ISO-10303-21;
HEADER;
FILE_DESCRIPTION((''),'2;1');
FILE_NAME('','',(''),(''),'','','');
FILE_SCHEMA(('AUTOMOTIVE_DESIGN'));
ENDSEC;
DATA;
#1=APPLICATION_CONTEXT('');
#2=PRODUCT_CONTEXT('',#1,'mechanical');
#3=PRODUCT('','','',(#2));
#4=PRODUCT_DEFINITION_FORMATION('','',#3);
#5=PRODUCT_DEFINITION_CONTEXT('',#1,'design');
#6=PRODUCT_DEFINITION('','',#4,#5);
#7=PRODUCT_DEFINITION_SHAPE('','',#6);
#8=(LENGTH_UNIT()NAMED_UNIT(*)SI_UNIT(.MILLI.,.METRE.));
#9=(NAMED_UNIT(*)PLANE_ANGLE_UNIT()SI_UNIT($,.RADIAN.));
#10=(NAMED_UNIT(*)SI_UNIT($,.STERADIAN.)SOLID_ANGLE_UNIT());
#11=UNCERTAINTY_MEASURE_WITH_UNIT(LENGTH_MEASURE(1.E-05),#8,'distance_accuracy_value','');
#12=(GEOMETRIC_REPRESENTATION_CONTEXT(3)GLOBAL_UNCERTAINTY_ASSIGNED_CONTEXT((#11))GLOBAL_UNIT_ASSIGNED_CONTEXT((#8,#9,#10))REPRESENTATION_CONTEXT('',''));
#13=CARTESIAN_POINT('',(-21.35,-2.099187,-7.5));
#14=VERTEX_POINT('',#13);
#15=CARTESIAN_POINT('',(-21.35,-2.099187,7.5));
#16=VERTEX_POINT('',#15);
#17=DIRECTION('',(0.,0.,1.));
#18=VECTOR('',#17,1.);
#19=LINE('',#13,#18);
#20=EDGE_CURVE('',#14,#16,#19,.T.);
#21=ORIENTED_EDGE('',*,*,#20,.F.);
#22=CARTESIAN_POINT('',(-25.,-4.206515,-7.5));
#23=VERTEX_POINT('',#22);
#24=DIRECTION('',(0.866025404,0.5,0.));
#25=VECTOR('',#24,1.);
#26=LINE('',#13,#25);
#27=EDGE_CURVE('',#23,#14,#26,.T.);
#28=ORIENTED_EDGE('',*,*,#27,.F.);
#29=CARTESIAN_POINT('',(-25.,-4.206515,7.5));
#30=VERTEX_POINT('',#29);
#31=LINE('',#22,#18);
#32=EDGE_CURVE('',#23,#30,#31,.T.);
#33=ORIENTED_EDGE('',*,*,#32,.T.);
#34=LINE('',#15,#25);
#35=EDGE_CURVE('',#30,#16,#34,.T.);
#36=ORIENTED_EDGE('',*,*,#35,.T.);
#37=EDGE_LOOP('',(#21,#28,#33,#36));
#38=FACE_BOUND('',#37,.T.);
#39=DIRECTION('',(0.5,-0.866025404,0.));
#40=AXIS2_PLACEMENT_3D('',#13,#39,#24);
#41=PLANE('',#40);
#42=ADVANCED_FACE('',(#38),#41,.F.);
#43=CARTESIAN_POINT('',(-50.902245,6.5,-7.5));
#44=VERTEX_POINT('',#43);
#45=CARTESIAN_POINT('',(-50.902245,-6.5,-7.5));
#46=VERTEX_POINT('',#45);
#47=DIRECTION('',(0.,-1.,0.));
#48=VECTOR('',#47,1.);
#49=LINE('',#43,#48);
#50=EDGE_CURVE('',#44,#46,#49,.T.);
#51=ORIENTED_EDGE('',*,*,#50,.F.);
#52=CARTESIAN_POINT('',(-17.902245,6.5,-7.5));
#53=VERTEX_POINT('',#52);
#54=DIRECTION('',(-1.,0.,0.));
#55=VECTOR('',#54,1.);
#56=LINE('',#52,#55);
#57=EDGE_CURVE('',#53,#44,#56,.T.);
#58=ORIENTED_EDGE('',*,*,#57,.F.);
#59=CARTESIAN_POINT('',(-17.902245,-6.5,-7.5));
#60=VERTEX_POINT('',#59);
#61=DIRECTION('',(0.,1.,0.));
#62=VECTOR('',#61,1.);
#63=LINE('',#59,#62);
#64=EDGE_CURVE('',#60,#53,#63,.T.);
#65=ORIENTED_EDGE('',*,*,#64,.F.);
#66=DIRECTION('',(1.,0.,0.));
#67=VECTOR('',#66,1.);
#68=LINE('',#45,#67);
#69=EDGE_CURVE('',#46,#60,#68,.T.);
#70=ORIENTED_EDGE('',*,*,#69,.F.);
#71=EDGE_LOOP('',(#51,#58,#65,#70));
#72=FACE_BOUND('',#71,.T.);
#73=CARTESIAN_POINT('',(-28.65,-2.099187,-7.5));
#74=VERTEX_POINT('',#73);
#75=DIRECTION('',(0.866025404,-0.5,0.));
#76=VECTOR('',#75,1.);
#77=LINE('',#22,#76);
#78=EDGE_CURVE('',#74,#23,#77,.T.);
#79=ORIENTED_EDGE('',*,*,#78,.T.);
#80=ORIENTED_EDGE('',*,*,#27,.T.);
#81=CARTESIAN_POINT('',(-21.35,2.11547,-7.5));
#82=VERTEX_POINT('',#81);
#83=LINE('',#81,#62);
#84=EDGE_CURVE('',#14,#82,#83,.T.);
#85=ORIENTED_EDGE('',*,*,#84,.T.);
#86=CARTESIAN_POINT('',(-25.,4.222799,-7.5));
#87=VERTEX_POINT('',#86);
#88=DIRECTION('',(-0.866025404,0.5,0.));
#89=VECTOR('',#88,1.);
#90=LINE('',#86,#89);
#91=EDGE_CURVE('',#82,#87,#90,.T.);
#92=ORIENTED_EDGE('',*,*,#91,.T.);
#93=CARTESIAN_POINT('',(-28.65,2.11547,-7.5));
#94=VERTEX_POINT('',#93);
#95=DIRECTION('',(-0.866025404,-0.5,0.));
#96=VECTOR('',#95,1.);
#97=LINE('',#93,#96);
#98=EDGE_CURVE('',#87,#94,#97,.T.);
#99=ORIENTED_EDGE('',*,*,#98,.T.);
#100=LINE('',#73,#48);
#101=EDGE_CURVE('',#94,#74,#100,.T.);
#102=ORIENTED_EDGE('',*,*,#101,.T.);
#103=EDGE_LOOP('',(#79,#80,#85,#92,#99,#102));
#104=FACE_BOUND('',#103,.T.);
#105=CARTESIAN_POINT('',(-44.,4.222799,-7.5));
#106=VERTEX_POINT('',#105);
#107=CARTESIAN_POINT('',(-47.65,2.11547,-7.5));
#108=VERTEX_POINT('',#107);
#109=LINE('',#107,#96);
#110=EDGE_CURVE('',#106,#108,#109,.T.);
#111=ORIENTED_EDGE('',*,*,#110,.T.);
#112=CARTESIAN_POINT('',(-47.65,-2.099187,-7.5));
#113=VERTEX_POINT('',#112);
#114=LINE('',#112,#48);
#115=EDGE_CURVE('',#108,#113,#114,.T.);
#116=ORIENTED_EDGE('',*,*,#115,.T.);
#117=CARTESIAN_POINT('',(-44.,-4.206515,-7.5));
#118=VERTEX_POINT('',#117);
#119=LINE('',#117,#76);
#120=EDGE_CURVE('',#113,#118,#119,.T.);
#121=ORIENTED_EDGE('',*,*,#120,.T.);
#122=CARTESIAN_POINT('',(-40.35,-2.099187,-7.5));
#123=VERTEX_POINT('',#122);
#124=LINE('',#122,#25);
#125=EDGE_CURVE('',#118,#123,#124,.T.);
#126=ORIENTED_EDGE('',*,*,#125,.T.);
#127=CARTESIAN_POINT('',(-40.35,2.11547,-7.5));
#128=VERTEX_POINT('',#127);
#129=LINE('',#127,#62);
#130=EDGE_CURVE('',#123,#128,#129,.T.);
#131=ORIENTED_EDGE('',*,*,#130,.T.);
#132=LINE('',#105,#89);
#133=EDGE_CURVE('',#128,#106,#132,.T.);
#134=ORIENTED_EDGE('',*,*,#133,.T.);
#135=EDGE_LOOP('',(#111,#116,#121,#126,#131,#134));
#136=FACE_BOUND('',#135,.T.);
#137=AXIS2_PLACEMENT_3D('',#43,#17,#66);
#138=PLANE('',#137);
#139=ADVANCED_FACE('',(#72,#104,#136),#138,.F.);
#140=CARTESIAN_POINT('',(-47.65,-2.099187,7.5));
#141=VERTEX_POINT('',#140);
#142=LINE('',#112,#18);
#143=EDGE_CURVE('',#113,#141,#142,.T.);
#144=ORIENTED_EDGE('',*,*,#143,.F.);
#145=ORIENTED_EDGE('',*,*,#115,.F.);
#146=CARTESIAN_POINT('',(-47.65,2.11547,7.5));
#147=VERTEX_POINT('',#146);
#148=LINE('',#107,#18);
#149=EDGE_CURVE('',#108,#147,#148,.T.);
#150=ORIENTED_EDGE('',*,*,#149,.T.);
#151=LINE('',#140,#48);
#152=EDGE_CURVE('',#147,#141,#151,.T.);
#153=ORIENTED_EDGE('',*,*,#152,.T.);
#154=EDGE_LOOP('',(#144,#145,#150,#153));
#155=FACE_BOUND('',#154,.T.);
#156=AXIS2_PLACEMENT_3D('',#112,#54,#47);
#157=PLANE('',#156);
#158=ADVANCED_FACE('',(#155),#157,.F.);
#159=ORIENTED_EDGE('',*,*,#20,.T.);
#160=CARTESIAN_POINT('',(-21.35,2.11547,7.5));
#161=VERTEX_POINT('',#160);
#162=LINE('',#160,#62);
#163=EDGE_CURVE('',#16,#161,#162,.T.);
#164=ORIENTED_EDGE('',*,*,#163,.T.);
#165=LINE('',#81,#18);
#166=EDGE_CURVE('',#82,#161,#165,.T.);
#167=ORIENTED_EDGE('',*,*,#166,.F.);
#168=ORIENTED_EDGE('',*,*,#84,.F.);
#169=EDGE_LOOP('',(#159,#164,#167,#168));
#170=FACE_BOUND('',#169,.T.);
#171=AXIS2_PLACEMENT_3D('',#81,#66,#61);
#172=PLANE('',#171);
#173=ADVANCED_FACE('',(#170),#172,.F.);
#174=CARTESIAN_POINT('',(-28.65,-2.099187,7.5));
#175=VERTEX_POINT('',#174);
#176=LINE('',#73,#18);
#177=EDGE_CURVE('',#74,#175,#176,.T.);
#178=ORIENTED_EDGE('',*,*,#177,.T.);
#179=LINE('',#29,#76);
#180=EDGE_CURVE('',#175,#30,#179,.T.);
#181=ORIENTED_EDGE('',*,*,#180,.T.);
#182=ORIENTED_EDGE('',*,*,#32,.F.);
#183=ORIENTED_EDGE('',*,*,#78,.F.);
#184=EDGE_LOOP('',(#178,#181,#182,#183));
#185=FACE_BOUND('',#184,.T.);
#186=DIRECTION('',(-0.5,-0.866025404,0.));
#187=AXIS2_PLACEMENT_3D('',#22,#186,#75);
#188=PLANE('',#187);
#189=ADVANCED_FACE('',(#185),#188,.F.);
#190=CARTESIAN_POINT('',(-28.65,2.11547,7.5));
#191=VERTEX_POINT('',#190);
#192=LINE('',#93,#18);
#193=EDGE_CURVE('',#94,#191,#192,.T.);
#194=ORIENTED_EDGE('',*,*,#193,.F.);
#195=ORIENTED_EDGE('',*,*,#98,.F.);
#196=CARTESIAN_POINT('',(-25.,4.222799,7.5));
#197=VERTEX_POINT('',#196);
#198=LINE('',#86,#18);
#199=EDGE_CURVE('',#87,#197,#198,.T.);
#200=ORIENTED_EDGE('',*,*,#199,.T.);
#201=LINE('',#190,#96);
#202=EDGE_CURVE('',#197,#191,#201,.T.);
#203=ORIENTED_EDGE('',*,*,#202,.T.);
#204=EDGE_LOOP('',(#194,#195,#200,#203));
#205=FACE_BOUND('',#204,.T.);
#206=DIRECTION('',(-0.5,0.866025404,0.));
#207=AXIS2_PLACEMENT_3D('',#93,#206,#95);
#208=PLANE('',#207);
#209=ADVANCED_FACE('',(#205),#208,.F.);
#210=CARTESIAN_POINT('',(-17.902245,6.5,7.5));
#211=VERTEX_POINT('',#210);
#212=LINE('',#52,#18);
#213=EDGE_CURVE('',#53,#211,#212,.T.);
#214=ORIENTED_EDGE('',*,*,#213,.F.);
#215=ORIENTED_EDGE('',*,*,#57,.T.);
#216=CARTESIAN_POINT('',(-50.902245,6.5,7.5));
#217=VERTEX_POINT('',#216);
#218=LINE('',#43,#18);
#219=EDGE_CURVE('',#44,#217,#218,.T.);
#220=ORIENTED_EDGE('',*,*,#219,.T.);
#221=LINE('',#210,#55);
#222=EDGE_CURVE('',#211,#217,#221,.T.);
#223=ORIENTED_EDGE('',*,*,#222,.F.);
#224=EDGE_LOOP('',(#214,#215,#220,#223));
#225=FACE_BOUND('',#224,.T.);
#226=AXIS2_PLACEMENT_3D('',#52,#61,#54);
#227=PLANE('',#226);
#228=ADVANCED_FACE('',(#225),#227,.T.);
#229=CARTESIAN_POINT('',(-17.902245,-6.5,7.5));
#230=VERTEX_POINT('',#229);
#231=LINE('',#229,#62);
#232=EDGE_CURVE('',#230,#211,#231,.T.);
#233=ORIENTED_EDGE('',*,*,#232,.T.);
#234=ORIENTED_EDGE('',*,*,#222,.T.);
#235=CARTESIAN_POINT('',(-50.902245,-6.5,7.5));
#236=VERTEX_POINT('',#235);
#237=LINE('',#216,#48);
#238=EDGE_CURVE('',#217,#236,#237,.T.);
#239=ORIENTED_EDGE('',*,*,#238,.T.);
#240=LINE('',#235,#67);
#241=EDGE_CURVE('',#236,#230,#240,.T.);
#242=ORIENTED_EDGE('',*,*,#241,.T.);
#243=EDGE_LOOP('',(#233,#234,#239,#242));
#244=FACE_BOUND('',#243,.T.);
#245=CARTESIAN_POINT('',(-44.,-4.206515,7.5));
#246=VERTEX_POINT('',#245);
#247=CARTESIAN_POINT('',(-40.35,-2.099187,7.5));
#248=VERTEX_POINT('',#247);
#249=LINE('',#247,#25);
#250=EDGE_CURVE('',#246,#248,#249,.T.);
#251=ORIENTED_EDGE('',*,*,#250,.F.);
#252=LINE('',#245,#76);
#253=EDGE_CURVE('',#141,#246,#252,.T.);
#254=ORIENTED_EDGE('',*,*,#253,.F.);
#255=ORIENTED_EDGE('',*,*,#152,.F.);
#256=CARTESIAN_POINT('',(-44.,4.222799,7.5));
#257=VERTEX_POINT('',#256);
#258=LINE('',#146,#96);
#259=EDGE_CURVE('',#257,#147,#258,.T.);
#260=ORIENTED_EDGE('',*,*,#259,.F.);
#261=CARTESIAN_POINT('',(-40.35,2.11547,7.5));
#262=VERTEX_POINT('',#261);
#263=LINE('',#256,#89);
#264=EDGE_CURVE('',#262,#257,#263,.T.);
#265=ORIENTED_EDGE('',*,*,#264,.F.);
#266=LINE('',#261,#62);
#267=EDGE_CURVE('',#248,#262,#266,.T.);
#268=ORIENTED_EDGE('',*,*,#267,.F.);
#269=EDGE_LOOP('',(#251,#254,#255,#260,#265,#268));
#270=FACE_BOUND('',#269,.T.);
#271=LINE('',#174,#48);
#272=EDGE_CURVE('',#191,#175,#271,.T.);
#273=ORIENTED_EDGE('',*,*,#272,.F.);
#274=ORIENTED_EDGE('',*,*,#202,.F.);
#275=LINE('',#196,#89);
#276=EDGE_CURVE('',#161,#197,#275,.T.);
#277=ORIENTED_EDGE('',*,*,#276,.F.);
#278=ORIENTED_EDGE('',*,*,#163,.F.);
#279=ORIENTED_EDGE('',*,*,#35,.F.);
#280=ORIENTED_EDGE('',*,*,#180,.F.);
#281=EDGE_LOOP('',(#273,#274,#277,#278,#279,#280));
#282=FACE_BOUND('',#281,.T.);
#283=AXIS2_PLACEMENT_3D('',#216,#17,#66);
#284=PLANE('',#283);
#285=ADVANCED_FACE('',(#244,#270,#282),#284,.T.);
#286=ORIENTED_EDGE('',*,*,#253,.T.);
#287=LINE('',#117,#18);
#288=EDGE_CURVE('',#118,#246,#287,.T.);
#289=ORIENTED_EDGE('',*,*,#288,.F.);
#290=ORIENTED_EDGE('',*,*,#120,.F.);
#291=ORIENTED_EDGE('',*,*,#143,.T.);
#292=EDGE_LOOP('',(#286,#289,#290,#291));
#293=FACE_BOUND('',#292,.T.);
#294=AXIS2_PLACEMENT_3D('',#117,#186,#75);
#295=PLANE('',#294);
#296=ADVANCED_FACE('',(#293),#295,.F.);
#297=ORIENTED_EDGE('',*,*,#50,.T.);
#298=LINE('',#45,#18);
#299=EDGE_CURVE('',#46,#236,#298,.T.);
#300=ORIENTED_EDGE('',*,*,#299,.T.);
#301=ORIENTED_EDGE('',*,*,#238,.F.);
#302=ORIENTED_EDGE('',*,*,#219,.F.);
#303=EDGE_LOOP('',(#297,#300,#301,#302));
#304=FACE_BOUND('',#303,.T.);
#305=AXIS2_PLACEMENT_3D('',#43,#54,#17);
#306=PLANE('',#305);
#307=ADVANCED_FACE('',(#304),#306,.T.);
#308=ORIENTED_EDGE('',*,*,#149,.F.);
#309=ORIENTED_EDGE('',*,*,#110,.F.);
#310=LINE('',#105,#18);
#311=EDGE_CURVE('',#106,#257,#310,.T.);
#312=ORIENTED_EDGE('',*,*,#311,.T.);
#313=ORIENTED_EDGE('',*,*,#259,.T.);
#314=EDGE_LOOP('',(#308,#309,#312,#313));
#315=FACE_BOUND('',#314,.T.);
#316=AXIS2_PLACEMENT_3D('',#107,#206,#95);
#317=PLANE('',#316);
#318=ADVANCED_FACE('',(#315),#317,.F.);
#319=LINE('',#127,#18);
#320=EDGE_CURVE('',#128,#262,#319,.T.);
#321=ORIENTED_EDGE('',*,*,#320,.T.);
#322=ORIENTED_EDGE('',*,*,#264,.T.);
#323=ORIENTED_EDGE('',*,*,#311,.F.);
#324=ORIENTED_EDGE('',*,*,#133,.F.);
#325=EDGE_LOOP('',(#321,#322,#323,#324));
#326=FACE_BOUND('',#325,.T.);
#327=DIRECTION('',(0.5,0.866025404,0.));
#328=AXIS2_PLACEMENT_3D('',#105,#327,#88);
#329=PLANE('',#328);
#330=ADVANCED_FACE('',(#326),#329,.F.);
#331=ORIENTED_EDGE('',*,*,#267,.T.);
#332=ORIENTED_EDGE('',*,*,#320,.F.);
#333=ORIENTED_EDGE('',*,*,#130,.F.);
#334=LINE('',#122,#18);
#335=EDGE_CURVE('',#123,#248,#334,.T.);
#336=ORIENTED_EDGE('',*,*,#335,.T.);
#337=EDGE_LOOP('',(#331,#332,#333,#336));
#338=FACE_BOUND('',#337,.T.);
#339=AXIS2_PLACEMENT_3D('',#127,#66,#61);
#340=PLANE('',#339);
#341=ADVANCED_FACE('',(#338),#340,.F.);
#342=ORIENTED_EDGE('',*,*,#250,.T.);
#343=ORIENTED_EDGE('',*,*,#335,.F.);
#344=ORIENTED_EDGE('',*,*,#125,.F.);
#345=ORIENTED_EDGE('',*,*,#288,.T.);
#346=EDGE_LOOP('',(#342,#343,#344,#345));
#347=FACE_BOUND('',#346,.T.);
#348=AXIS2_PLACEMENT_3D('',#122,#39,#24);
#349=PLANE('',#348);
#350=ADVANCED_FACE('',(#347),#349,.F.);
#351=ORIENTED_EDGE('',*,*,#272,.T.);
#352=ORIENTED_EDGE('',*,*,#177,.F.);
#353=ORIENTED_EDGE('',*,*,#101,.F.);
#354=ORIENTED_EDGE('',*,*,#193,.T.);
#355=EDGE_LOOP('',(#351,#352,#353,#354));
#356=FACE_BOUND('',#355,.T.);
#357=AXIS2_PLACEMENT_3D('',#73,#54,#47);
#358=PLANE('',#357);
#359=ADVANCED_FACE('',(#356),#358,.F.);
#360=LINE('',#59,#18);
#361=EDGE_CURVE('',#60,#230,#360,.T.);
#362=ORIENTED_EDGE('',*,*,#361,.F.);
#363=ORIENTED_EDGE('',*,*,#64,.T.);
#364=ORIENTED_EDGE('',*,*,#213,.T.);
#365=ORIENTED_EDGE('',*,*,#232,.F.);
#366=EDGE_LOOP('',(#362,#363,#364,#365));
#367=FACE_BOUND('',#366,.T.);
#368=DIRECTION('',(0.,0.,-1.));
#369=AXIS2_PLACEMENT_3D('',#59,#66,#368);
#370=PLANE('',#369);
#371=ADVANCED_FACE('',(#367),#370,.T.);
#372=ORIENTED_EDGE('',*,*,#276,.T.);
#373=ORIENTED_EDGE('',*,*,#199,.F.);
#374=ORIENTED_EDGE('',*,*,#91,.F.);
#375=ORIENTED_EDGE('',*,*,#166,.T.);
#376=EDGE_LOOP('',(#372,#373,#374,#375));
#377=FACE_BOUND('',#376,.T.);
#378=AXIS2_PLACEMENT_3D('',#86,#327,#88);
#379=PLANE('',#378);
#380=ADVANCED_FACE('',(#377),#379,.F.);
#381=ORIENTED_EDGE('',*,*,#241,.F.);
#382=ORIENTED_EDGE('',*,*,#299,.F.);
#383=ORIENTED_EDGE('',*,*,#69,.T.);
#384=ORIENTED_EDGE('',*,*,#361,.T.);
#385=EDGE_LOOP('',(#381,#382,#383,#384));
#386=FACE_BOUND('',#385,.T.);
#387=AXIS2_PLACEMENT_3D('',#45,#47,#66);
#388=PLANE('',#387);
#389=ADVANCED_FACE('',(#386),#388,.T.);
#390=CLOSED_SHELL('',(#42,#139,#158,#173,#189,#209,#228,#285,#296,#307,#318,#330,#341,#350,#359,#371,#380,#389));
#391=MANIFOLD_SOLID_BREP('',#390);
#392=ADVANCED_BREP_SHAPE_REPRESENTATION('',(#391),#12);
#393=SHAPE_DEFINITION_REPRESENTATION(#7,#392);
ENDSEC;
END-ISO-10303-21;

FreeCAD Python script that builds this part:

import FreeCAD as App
import Part
import Sketcher
Q = App.Units.Quantity

doc = App.newDocument("Part")
body = doc.addObject("PartDesign::Body", "Body")

# Sketch on XY plane
sketch1 = body.newObject("Sketcher::SketchObject", "Sketch")
sketch1.AttachmentSupport = (doc.getObject("XY_Plane"), [""])
sketch1.MapMode = "FlatFace"
sketch1.AttachmentOffset = App.Placement(App.Vector(0, 0, 7.5), App.Rotation())
sketch1.addGeometry([
    Part.LineSegment(App.Vector(-50.902245, 6.5, 0), App.Vector(-50.902245, -6.5, 0)),  # 0
    Part.LineSegment(App.Vector(-50.902245, -6.5, 0), App.Vector(-17.902245, -6.5, 0)),  # 1
    Part.LineSegment(App.Vector(-17.902245, -6.5, 0), App.Vector(-17.902245, 6.5, 0)),  # 2
    Part.LineSegment(App.Vector(-17.902245, 6.5, 0), App.Vector(-50.902245, 6.5, 0)),  # 3
    Part.LineSegment(App.Vector(-44, -4.206515, 0), App.Vector(-47.65, -2.099187, 0)),  # 4
    Part.LineSegment(App.Vector(-47.65, -2.099187, 0), App.Vector(-47.65, 2.11547, 0)),  # 5
    Part.LineSegment(App.Vector(-47.65, 2.11547, 0), App.Vector(-44, 4.222799, 0)),  # 6
    Part.LineSegment(App.Vector(-44, 4.222799, 0), App.Vector(-40.35, 2.11547, 0)),  # 7
    Part.LineSegment(App.Vector(-40.35, 2.11547, 0), App.Vector(-40.35, -2.099187, 0)),  # 8
    Part.LineSegment(App.Vector(-40.35, -2.099187, 0), App.Vector(-44, -4.206515, 0)),  # 9
    Part.LineSegment(App.Vector(-25, -4.206515, 0), App.Vector(-28.65, -2.099187, 0)),  # 10
    Part.LineSegment(App.Vector(-28.65, -2.099187, 0), App.Vector(-28.65, 2.11547, 0)),  # 11
    Part.LineSegment(App.Vector(-28.65, 2.11547, 0), App.Vector(-25, 4.222799, 0)),  # 12
    Part.LineSegment(App.Vector(-25, 4.222799, 0), App.Vector(-21.35, 2.11547, 0)),  # 13
    Part.LineSegment(App.Vector(-21.35, 2.11547, 0), App.Vector(-21.35, -2.099187, 0)),  # 14
    Part.LineSegment(App.Vector(-21.35, -2.099187, 0), App.Vector(-25, -4.206515, 0)),  # 15
], False)
sketch1.addConstraint([
    Sketcher.Constraint("Coincident", 0, 2, 1, 1),
    Sketcher.Constraint("Coincident", 1, 2, 2, 1),
    Sketcher.Constraint("Coincident", 2, 2, 3, 1),
    Sketcher.Constraint("Coincident", 3, 2, 0, 1),
    Sketcher.Constraint("Coincident", 4, 2, 5, 1),
    Sketcher.Constraint("Coincident", 5, 2, 6, 1),
    Sketcher.Constraint("Coincident", 6, 2, 7, 1),
    Sketcher.Constraint("Coincident", 7, 2, 8, 1),
    Sketcher.Constraint("Coincident", 8, 2, 9, 1),
    Sketcher.Constraint("Coincident", 9, 2, 4, 1),
    Sketcher.Constraint("Coincident", 10, 2, 11, 1),
    Sketcher.Constraint("Coincident", 11, 2, 12, 1),
    Sketcher.Constraint("Coincident", 12, 2, 13, 1),
    Sketcher.Constraint("Coincident", 13, 2, 14, 1),
    Sketcher.Constraint("Coincident", 14, 2, 15, 1),
    Sketcher.Constraint("Coincident", 15, 2, 10, 1),
    Sketcher.Constraint("Vertical", 0),
    Sketcher.Constraint("Horizontal", 1),
    Sketcher.Constraint("Vertical", 2),
    Sketcher.Constraint("Horizontal", 3),
    Sketcher.Constraint("Vertical", 5),
    Sketcher.Constraint("Vertical", 8),
    Sketcher.Constraint("Vertical", 11),
    Sketcher.Constraint("Vertical", 14),
    Sketcher.Constraint("Parallel", 4, 7),
    Sketcher.Constraint("Parallel", 6, 9),
    Sketcher.Constraint("Parallel", 7, 10),
    Sketcher.Constraint("Parallel", 9, 12),
    Sketcher.Constraint("Parallel", 10, 13),
    Sketcher.Constraint("Parallel", 12, 15),
    Sketcher.Constraint("Horizontal", 5, 2, 7, 2),
    Sketcher.Constraint("Horizontal", 4, 2, 8, 2),
    Sketcher.Constraint("Horizontal", 8, 2, 10, 2),
    Sketcher.Constraint("Horizontal", 7, 2, 11, 2),
    Sketcher.Constraint("Horizontal", 6, 2, 12, 2),
    Sketcher.Constraint("Horizontal", 11, 2, 13, 2),
    Sketcher.Constraint("Horizontal", 10, 2, 14, 2),
    Sketcher.Constraint("Vertical", 6, 2, 9, 2),
    Sketcher.Constraint("DistanceX", 1, 1, 1, 2, Q("33 mm")),
    Sketcher.Constraint("DistanceY", 0, 2, 0, 1, Q("13 mm")),
    Sketcher.Constraint("Angle", 4, Q("150 deg")),
    Sketcher.Constraint("DistanceX", 6, 2, -1, 1, Q("44 mm")),
    Sketcher.Constraint("DistanceX", 12, 2, -1, 1, Q("25 mm")),
    Sketcher.Constraint("DistanceY", 0, 2, -1, 1, Q("6.5 mm")),
    Sketcher.Constraint("DistanceX", 5, 2, 7, 2, Q("7.3 mm")),
    Sketcher.Constraint("DistanceY", -1, 1, 6, 2, Q("4.222799 mm")),
    Sketcher.Constraint("DistanceY", 5, 1, 5, 2, Q("4.214657 mm")),
    Sketcher.Constraint("DistanceX", 0, 2, -1, 1, Q("50.902245 mm")),
])
pad1 = body.newObject("PartDesign::Pad", "Pad")
pad1.Profile = sketch1
pad1.Length = 15
pad1.Reversed = True

doc.recompute()
